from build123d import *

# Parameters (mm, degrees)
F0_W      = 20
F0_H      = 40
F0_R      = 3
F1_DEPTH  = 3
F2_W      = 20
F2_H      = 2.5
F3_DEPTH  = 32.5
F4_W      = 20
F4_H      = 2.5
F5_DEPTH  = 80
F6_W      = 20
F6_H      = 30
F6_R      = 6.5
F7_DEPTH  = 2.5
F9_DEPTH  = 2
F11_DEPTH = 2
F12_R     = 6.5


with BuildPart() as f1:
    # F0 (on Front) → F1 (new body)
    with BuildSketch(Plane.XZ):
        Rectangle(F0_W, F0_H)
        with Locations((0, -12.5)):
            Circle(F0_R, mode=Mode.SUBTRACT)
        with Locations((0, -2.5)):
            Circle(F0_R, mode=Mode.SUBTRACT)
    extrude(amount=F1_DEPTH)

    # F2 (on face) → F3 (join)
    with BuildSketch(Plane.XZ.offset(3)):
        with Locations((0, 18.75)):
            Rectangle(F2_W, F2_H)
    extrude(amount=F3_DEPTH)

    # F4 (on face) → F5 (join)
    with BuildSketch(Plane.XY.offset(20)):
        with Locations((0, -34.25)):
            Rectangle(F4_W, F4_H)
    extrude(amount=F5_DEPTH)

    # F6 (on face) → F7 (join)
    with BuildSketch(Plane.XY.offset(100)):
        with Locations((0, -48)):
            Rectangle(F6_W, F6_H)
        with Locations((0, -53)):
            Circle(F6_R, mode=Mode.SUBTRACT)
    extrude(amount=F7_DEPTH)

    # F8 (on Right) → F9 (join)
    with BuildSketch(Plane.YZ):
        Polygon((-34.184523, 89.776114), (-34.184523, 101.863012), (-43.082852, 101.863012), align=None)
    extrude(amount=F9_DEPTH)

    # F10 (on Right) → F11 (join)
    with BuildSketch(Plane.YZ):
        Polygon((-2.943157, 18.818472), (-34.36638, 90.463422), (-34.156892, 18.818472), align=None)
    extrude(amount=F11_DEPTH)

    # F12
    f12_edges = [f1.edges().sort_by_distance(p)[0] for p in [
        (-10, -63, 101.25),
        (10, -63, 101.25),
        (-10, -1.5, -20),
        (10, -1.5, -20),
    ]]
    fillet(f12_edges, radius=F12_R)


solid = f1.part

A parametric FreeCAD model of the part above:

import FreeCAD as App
import Part
import Sketcher
from FreeCAD import Vector
Q = App.Units.Quantity


def edges_at(feature, points):
    """Names of the edges that pass closest to the given points."""
    edges = feature.Shape.Edges
    near = lambda p: min(range(len(edges)), key=lambda i: edges[i].distToShape(Part.Vertex(*p))[0])
    return sorted({f"Edge{near(p) + 1}" for p in points})

doc = App.newDocument("Part")
body = doc.addObject("PartDesign::Body", "Body")

# Sketch on XZ plane
sketch1 = body.newObject("Sketcher::SketchObject", "Sketch")
sketch1.AttachmentSupport = (doc.getObject("XZ_Plane"), [""])
sketch1.MapMode = "FlatFace"
sketch1.addGeometry([
    Part.LineSegment(Vector(-10, 20, 0), Vector(-10, -20, 0)),  # 0
    Part.LineSegment(Vector(-10, -20, 0), Vector(10, -20, 0)),  # 1
    Part.LineSegment(Vector(10, -20, 0), Vector(10, 20, 0)),  # 2
    Part.LineSegment(Vector(10, 20, 0), Vector(-10, 20, 0)),  # 3
    Part.Circle(Vector(0, -12.5, 0), Vector(0, 0, 1), 3),  # 4
    Part.Circle(Vector(0, -2.5, 0), Vector(0, 0, 1), 3),  # 5
], False)
sketch1.addConstraint([
    Sketcher.Constraint("Coincident", 0, 2, 1, 1),
    Sketcher.Constraint("Coincident", 1, 2, 2, 1),
    Sketcher.Constraint("Coincident", 2, 2, 3, 1),
    Sketcher.Constraint("Coincident", 3, 2, 0, 1),
    Sketcher.Constraint("Vertical", 0),
    Sketcher.Constraint("Horizontal", 1),
    Sketcher.Constraint("Vertical", 2),
    Sketcher.Constraint("Horizontal", 3),
    Sketcher.Constraint("Equal", 4, 5),
    Sketcher.Constraint("Symmetric", 0, 2, 2, 2, -1, 1),
    Sketcher.Constraint("PointOnObject", 4, 3, -2),
    Sketcher.Constraint("PointOnObject", 5, 3, -2),
    Sketcher.Constraint("Diameter", 4, Q("6 mm")),
    Sketcher.Constraint("DistanceX", 1, 1, 1, 2, Q("20 mm")),
    Sketcher.Constraint("DistanceY", 0, 2, 0, 1, Q("40 mm")),
    Sketcher.Constraint("DistanceY", 4, 3, 5, 3, Q("10 mm")),
    Sketcher.Constraint("DistanceY", 4, 3, -1, 1, Q("12.5 mm")),
])
pad1 = body.newObject("PartDesign::Pad", "Pad")
pad1.Profile = sketch1
pad1.Length = 3

# Sketch on XZ plane
sketch2 = body.newObject("Sketcher::SketchObject", "Sketch001")
sketch2.AttachmentSupport = (doc.getObject("XZ_Plane"), [""])
sketch2.MapMode = "FlatFace"
sketch2.AttachmentOffset = App.Placement(Vector(0, 0, 3), App.Rotation())
sketch2.addGeometry([
    Part.LineSegment(Vector(-10, 20, 0), Vector(-10, 17.5, 0)),
    Part.LineSegment(Vector(-10, 17.5, 0), Vector(10, 17.5, 0)),
    Part.LineSegment(Vector(10, 17.5, 0), Vector(10, 20, 0)),
    Part.LineSegment(Vector(10, 20, 0), Vector(-10, 20, 0)),
], False)
sketch2.addConstraint([
    Sketcher.Constraint("Coincident", 0, 2, 1, 1),
    Sketcher.Constraint("Coincident", 1, 2, 2, 1),
    Sketcher.Constraint("Coincident", 2, 2, 3, 1),
    Sketcher.Constraint("Coincident", 3, 2, 0, 1),
    Sketcher.Constraint("Vertical", 0),
    Sketcher.Constraint("Horizontal", 1),
    Sketcher.Constraint("Vertical", 2),
    Sketcher.Constraint("Horizontal", 3),
    Sketcher.Constraint("DistanceX", 1, 1, 1, 2, Q("20 mm")),
    Sketcher.Constraint("DistanceY", 0, 2, 0, 1, Q("2.5 mm")),
    Sketcher.Constraint("DistanceX", 0, 2, -1, 1, Q("10 mm")),
    Sketcher.Constraint("DistanceY", -1, 1, 2, 2, Q("20 mm")),
])
pad2 = body.newObject("PartDesign::Pad", "Pad001")
pad2.Profile = sketch2
pad2.Length = 32.5

# Sketch on XY plane
sketch3 = body.newObject("Sketcher::SketchObject", "Sketch002")
sketch3.AttachmentSupport = (doc.getObject("XY_Plane"), [""])
sketch3.MapMode = "FlatFace"
sketch3.AttachmentOffset = App.Placement(Vector(0, 0, 20), App.Rotation())
sketch3.addGeometry([
    Part.LineSegment(Vector(-10, -33, 0), Vector(-10, -35.5, 0)),
    Part.LineSegment(Vector(-10, -35.5, 0), Vector(10, -35.5, 0)),
    Part.LineSegment(Vector(10, -35.5, 0), Vector(10, -33, 0)),
    Part.LineSegment(Vector(10, -33, 0), Vector(-10, -33, 0)),
], False)
sketch3.addConstraint([
    Sketcher.Constraint("Coincident", 0, 2, 1, 1),
    Sketcher.Constraint("Coincident", 1, 2, 2, 1),
    Sketcher.Constraint("Coincident", 2, 2, 3, 1),
    Sketcher.Constraint("Coincident", 3, 2, 0, 1),
    Sketcher.Constraint("Vertical", 0),
    Sketcher.Constraint("Horizontal", 1),
    Sketcher.Constraint("Vertical", 2),
    Sketcher.Constraint("Horizontal", 3),
    Sketcher.Constraint("DistanceX", 1, 1, 1, 2, Q("20 mm")),
    Sketcher.Constraint("DistanceY", 0, 2, 0, 1, Q("2.5 mm")),
    Sketcher.Constraint("DistanceX", 0, 2, -1, 1, Q("10 mm")),
    Sketcher.Constraint("DistanceY", 2, 2, -1, 1, Q("33 mm")),
])
pad3 = body.newObject("PartDesign::Pad", "Pad002")
pad3.Profile = sketch3
pad3.Length = 80

# Sketch on XY plane
sketch4 = body.newObject("Sketcher::SketchObject", "Sketch003")
sketch4.AttachmentSupport = (doc.getObject("XY_Plane"), [""])
sketch4.MapMode = "FlatFace"
sketch4.AttachmentOffset = App.Placement(Vector(0, 0, 100), App.Rotation())
sketch4.addGeometry([
    Part.LineSegment(Vector(-10, -33, 0), Vector(-10, -63, 0)),  # 0
    Part.LineSegment(Vector(-10, -63, 0), Vector(10, -63, 0)),  # 1
    Part.LineSegment(Vector(10, -63, 0), Vector(10, -33, 0)),  # 2
    Part.LineSegment(Vector(10, -33, 0), Vector(-10, -33, 0)),  # 3
    Part.Circle(Vector(0, -53, 0), Vector(0, 0, 1), 6),  # 4
], False)
sketch4.addConstraint([
    Sketcher.Constraint("Coincident", 0, 2, 1, 1),
    Sketcher.Constraint("Coincident", 1, 2, 2, 1),
    Sketcher.Constraint("Coincident", 2, 2, 3, 1),
    Sketcher.Constraint("Coincident", 3, 2, 0, 1),
    Sketcher.Constraint("Vertical", 0),
    Sketcher.Constraint("Horizontal", 1),
    Sketcher.Constraint("Vertical", 2),
    Sketcher.Constraint("Horizontal", 3),
    Sketcher.Constraint("PointOnObject", 4, 3, -2),
    Sketcher.Constraint("Diameter", 4, Q("13 mm")),
    Sketcher.Constraint("DistanceX", 1, 1, 1, 2, Q("20 mm")),
    Sketcher.Constraint("DistanceY", 0, 2, 0, 1, Q("30 mm")),
    Sketcher.Constraint("DistanceY", 4, 3, -1, 1, Q("53 mm")),
    Sketcher.Constraint("DistanceX", 0, 2, -1, 1, Q("10 mm")),
    Sketcher.Constraint("DistanceY", 0, 2, -1, 1, Q("63 mm")),
])
pad4 = body.newObject("PartDesign::Pad", "Pad003")
pad4.Profile = sketch4
pad4.Length = 2.5

# Sketch on YZ plane
sketch5 = body.newObject("Sketcher::SketchObject", "Sketch004")
sketch5.AttachmentSupport = (doc.getObject("YZ_Plane"), [""])
sketch5.MapMode = "FlatFace"
sketch5.addGeometry([
    Part.LineSegment(Vector(-34, 90, 0), Vector(-34, 102, 0)),
    Part.LineSegment(Vector(-34, 102, 0), Vector(-43, 102, 0)),
    Part.LineSegment(Vector(-43, 102, 0), Vector(-34, 90, 0)),
], False)
sketch5.addConstraint([
    Sketcher.Constraint("Coincident", 0, 2, 1, 1),
    Sketcher.Constraint("Coincident", 1, 2, 2, 1),
    Sketcher.Constraint("Coincident", 2, 2, 0, 1),
    Sketcher.Constraint("Vertical", 0),
    Sketcher.Constraint("Horizontal", 1),
    Sketcher.Constraint("DistanceX", 1, 2, 1, 1, Q("8.898329 mm")),
    Sketcher.Constraint("Distance", 2, Q("15.009109 mm")),
    Sketcher.Constraint("DistanceY", -1, 1, 0, 2, Q("101.863012 mm")),
    Sketcher.Constraint("DistanceX", 0, 2, -1, 1, Q("34.184523 mm")),
])
pad5 = body.newObject("PartDesign::Pad", "Pad004")
pad5.Profile = sketch5
pad5.Length = 2

# Sketch on YZ plane
sketch6 = body.newObject("Sketcher::SketchObject", "Sketch005")
sketch6.AttachmentSupport = (doc.getObject("YZ_Plane"), [""])
sketch6.MapMode = "FlatFace"
sketch6.addGeometry([
    Part.LineSegment(Vector(-3, 19, 0), Vector(-34, 90, 0)),
    Part.LineSegment(Vector(-34, 90, 0), Vector(-34, 19, 0)),
    Part.LineSegment(Vector(-34, 19, 0), Vector(-3, 19, 0)),
], False)
sketch6.addConstraint([
    Sketcher.Constraint("Coincident", 0, 2, 1, 1),
    Sketcher.Constraint("Coincident", 1, 2, 2, 1),
    Sketcher.Constraint("Coincident", 2, 2, 0, 1),
    Sketcher.Constraint("Horizontal", 2),
    Sketcher.Constraint("Distance", 0, Q("78.233099 mm")),
    Sketcher.Constraint("DistanceX", 2, 1, 2, 2, Q("31.213735 mm")),
    Sketcher.Constraint("DistanceX", 0, 2, -1, 1, Q("34.36638 mm")),
    Sketcher.Constraint("DistanceY", -1, 1, 0, 2, Q("90.463422 mm")),
    Sketcher.Constraint("DistanceY", -1, 1, 1, 2, Q("18.818472 mm")),
])
pad6 = body.newObject("PartDesign::Pad", "Pad005")
pad6.Profile = sketch6
pad6.Length = 2
doc.recompute()

fillet = body.newObject("PartDesign::Fillet", "Fillet")
fillet.Base = (pad6, edges_at(pad6, [
    (-10, -63, 101.25),
    (10, -63, 101.25),
    (-10, -1.5, -20),
    (10, -1.5, -20),
]))
fillet.Radius = 6.5

doc.recompute()
